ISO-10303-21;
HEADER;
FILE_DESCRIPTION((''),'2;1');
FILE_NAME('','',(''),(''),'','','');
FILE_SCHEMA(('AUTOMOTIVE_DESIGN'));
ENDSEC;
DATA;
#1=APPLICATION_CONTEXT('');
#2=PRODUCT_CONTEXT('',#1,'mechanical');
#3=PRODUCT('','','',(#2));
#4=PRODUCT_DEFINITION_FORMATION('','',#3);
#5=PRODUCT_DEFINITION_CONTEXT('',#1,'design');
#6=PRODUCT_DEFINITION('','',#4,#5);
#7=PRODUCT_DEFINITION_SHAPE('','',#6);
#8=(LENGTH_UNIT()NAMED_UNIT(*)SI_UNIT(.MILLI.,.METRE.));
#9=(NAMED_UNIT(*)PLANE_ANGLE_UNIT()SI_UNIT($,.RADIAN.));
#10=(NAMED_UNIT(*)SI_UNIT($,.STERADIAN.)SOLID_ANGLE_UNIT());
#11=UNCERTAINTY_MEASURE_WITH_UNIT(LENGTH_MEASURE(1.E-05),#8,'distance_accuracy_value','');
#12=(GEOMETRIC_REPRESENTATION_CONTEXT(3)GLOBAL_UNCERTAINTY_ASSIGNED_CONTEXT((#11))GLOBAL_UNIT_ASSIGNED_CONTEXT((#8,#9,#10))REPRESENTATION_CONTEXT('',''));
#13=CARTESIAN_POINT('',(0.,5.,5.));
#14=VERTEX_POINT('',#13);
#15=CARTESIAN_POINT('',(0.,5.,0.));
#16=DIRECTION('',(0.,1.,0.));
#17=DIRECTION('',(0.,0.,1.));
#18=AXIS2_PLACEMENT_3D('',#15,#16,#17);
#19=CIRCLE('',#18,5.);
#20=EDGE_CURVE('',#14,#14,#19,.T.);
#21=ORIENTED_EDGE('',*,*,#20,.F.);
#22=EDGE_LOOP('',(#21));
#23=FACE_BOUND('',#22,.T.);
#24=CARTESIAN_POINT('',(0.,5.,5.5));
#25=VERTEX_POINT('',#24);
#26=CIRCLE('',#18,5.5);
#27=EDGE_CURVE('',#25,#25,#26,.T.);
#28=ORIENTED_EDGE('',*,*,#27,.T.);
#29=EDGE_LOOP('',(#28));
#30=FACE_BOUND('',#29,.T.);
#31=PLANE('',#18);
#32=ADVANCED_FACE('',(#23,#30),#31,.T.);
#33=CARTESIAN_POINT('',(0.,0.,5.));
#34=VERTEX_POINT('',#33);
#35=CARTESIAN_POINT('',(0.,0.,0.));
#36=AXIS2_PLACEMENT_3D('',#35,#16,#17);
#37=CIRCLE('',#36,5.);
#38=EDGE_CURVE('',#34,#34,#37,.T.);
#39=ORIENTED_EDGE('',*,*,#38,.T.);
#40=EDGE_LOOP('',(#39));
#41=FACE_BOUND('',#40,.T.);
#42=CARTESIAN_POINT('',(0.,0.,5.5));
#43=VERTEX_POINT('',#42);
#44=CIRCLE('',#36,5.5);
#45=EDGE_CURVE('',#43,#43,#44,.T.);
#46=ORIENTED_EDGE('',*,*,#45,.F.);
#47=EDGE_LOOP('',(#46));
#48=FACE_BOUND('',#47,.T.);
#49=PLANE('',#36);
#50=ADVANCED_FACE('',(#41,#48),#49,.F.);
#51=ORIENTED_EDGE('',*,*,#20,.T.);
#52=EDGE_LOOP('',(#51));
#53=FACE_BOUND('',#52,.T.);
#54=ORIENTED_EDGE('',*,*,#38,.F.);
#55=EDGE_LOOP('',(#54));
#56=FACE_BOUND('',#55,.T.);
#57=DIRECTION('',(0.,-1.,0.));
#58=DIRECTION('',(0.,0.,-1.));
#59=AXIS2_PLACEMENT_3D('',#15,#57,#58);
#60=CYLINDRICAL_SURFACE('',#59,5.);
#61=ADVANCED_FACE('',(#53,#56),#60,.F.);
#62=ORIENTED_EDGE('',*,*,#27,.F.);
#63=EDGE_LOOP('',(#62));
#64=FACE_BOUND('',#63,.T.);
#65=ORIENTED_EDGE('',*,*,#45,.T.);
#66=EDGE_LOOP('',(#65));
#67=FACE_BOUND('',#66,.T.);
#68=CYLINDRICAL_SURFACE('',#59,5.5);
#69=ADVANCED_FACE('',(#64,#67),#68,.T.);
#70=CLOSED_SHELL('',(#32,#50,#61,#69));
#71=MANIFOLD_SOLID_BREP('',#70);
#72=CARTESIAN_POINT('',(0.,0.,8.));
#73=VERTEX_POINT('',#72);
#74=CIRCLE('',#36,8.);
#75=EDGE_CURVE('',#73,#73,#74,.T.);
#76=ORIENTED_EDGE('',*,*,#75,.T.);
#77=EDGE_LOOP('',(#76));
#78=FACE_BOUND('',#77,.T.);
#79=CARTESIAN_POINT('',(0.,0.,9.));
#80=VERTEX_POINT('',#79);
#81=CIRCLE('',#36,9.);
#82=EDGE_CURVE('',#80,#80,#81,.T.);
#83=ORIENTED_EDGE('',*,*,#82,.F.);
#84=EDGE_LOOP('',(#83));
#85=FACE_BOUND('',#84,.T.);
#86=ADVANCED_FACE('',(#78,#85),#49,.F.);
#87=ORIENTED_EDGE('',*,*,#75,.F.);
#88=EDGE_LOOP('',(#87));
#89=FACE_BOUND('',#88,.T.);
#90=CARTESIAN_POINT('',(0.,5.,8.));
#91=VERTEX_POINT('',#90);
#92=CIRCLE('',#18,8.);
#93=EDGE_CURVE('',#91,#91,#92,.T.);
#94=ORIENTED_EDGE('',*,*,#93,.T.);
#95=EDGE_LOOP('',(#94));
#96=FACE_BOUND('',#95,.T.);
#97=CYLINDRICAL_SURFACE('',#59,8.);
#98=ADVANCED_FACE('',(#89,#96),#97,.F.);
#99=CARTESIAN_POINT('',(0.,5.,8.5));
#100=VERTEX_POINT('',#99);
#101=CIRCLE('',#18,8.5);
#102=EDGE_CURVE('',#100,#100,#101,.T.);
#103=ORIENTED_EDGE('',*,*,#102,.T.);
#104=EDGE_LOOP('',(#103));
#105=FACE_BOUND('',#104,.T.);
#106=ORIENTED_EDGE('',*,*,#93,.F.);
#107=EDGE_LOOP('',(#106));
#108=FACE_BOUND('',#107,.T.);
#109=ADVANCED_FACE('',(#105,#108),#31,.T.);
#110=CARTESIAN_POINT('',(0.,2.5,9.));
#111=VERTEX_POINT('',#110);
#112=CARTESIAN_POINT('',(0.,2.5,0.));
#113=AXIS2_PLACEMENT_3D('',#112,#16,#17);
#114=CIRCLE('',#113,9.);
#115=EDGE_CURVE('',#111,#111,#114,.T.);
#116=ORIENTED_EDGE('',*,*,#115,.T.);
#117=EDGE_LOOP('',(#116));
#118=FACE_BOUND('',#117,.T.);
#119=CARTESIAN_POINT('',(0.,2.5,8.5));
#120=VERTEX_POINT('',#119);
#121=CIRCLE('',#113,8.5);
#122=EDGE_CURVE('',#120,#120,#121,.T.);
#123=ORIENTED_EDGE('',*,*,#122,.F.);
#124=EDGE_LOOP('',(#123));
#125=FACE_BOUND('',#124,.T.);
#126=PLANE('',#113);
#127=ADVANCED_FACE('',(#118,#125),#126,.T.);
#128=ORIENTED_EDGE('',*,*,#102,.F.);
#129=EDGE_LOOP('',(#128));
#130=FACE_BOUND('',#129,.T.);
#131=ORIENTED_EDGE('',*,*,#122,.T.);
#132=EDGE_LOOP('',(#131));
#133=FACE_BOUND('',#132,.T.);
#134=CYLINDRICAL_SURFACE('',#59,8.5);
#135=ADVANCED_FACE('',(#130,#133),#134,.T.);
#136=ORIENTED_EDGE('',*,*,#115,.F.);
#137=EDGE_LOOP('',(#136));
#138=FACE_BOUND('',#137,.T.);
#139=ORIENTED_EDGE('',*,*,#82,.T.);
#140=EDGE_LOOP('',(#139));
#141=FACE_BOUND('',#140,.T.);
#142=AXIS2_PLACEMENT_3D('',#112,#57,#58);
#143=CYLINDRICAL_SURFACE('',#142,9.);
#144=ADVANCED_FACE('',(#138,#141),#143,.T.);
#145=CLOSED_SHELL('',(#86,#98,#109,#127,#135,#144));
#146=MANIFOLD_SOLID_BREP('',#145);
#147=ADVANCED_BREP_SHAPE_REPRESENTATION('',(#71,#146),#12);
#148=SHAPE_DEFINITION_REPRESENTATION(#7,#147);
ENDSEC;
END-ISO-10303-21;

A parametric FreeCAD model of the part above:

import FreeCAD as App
import Part
import Sketcher
Q = App.Units.Quantity

doc = App.newDocument("Part")
body = doc.addObject("PartDesign::Body", "Body")

sketch1 = body.newObject("Sketcher::SketchObject", "Sketch")
sketch1.AttachmentSupport = (doc.getObject("XZ_Plane"), [""])
sketch1.MapMode = "FlatFace"
sketch1.addGeometry(Part.Circle(App.Vector(0, 0, 0), App.Vector(0, 0, 1), 6), False)
sketch1.addGeometry(Part.Circle(App.Vector(0, 0, 0), App.Vector(0, 0, 1), 5), False)
sketch1.addConstraint(Sketcher.Constraint("Coincident", 0, 3, -1, 1))
sketch1.addConstraint(Sketcher.Constraint("Coincident", 1, 3, -1, 1))
sketch1.addConstraint(Sketcher.Constraint("Diameter", 0, Q("11 mm")))
sketch1.addConstraint(Sketcher.Constraint("Diameter", 1, Q("10 mm")))
pad1 = body.newObject("PartDesign::Pad", "Pad")
pad1.Profile = sketch1
pad1.Length = 5
pad1.Reversed = True
body2 = doc.addObject("PartDesign::Body", "Body001")

sketch2 = body2.newObject("Sketcher::SketchObject", "Sketch001")
sketch2.AttachmentSupport = (doc.getObject("XZ_Plane001"), [""])
sketch2.MapMode = "FlatFace"
sketch2.addGeometry(Part.Circle(App.Vector(0, 0, 0), App.Vector(0, 0, 1), 8), False)
sketch2.addGeometry(Part.Circle(App.Vector(0, 0, 0), App.Vector(0, 0, 1), 8), False)
sketch2.addConstraint(Sketcher.Constraint("Coincident", 0, 3, -1, 1))
sketch2.addConstraint(Sketcher.Constraint("Coincident", 1, 3, -1, 1))
sketch2.addConstraint(Sketcher.Constraint("Diameter", 0, Q("17 mm")))
sketch2.addConstraint(Sketcher.Constraint("Diameter", 1, Q("16 mm")))
pad2 = body2.newObject("PartDesign::Pad", "Pad001")
pad2.Profile = sketch2
pad2.Length = 5
pad2.Reversed = True

sketch3 = body2.newObject("Sketcher::SketchObject", "Sketch002")
sketch3.AttachmentSupport = (doc.getObject("XZ_Plane001"), [""])
sketch3.MapMode = "FlatFace"
sketch3.addGeometry(Part.Circle(App.Vector(0, 0, 0), App.Vector(0, 0, 1), 9), False)
sketch3.addGeometry(Part.Circle(App.Vector(0, 0, 0), App.Vector(0, 0, 1), 8), False)
sketch3.addConstraint(Sketcher.Constraint("Coincident", 0, 3, -1, 1))
sketch3.addConstraint(Sketcher.Constraint("Coincident", 1, 3, -1, 1))
sketch3.addConstraint(Sketcher.Constraint("Diameter", 0, Q("18 mm")))
sketch3.addConstraint(Sketcher.Constraint("Diameter", 1, Q("17 mm")))
pad3 = body2.newObject("PartDesign::Pad", "Pad002")
pad3.Profile = sketch3
pad3.Length = 2.5
pad3.Reversed = True

doc.recompute()
